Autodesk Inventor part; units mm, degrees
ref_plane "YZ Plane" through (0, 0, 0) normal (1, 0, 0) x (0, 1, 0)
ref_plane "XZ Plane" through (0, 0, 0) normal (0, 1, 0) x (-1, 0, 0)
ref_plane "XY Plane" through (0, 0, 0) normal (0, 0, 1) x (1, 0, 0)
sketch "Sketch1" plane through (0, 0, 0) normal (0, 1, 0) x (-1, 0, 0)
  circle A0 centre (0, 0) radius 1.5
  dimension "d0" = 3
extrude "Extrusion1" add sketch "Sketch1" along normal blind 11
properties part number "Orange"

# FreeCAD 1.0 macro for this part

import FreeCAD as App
import Part
import Sketcher

doc = App.newDocument("Part")
body = doc.addObject("PartDesign::Body", "Body")

# Sketch on XZ plane
sketch1 = body.newObject("Sketcher::SketchObject", "Sketch")
sketch1.AttachmentSupport = (doc.getObject("XZ_Plane"), [""])
sketch1.MapMode = "FlatFace"
sketch1.addGeometry(Part.Circle(App.Vector(0, 0, 0), App.Vector(0, 0, 1), 1.5), False)
sketch1.addConstraint([
    Sketcher.Constraint("Coincident", 0, 3, -1, 1),
    Sketcher.Constraint("Diameter", 0, 3.0),
])
pad1 = body.newObject("PartDesign::Pad", "Pad")
pad1.Profile = sketch1
pad1.Length = 11
pad1.Reversed = True

doc.recompute()
